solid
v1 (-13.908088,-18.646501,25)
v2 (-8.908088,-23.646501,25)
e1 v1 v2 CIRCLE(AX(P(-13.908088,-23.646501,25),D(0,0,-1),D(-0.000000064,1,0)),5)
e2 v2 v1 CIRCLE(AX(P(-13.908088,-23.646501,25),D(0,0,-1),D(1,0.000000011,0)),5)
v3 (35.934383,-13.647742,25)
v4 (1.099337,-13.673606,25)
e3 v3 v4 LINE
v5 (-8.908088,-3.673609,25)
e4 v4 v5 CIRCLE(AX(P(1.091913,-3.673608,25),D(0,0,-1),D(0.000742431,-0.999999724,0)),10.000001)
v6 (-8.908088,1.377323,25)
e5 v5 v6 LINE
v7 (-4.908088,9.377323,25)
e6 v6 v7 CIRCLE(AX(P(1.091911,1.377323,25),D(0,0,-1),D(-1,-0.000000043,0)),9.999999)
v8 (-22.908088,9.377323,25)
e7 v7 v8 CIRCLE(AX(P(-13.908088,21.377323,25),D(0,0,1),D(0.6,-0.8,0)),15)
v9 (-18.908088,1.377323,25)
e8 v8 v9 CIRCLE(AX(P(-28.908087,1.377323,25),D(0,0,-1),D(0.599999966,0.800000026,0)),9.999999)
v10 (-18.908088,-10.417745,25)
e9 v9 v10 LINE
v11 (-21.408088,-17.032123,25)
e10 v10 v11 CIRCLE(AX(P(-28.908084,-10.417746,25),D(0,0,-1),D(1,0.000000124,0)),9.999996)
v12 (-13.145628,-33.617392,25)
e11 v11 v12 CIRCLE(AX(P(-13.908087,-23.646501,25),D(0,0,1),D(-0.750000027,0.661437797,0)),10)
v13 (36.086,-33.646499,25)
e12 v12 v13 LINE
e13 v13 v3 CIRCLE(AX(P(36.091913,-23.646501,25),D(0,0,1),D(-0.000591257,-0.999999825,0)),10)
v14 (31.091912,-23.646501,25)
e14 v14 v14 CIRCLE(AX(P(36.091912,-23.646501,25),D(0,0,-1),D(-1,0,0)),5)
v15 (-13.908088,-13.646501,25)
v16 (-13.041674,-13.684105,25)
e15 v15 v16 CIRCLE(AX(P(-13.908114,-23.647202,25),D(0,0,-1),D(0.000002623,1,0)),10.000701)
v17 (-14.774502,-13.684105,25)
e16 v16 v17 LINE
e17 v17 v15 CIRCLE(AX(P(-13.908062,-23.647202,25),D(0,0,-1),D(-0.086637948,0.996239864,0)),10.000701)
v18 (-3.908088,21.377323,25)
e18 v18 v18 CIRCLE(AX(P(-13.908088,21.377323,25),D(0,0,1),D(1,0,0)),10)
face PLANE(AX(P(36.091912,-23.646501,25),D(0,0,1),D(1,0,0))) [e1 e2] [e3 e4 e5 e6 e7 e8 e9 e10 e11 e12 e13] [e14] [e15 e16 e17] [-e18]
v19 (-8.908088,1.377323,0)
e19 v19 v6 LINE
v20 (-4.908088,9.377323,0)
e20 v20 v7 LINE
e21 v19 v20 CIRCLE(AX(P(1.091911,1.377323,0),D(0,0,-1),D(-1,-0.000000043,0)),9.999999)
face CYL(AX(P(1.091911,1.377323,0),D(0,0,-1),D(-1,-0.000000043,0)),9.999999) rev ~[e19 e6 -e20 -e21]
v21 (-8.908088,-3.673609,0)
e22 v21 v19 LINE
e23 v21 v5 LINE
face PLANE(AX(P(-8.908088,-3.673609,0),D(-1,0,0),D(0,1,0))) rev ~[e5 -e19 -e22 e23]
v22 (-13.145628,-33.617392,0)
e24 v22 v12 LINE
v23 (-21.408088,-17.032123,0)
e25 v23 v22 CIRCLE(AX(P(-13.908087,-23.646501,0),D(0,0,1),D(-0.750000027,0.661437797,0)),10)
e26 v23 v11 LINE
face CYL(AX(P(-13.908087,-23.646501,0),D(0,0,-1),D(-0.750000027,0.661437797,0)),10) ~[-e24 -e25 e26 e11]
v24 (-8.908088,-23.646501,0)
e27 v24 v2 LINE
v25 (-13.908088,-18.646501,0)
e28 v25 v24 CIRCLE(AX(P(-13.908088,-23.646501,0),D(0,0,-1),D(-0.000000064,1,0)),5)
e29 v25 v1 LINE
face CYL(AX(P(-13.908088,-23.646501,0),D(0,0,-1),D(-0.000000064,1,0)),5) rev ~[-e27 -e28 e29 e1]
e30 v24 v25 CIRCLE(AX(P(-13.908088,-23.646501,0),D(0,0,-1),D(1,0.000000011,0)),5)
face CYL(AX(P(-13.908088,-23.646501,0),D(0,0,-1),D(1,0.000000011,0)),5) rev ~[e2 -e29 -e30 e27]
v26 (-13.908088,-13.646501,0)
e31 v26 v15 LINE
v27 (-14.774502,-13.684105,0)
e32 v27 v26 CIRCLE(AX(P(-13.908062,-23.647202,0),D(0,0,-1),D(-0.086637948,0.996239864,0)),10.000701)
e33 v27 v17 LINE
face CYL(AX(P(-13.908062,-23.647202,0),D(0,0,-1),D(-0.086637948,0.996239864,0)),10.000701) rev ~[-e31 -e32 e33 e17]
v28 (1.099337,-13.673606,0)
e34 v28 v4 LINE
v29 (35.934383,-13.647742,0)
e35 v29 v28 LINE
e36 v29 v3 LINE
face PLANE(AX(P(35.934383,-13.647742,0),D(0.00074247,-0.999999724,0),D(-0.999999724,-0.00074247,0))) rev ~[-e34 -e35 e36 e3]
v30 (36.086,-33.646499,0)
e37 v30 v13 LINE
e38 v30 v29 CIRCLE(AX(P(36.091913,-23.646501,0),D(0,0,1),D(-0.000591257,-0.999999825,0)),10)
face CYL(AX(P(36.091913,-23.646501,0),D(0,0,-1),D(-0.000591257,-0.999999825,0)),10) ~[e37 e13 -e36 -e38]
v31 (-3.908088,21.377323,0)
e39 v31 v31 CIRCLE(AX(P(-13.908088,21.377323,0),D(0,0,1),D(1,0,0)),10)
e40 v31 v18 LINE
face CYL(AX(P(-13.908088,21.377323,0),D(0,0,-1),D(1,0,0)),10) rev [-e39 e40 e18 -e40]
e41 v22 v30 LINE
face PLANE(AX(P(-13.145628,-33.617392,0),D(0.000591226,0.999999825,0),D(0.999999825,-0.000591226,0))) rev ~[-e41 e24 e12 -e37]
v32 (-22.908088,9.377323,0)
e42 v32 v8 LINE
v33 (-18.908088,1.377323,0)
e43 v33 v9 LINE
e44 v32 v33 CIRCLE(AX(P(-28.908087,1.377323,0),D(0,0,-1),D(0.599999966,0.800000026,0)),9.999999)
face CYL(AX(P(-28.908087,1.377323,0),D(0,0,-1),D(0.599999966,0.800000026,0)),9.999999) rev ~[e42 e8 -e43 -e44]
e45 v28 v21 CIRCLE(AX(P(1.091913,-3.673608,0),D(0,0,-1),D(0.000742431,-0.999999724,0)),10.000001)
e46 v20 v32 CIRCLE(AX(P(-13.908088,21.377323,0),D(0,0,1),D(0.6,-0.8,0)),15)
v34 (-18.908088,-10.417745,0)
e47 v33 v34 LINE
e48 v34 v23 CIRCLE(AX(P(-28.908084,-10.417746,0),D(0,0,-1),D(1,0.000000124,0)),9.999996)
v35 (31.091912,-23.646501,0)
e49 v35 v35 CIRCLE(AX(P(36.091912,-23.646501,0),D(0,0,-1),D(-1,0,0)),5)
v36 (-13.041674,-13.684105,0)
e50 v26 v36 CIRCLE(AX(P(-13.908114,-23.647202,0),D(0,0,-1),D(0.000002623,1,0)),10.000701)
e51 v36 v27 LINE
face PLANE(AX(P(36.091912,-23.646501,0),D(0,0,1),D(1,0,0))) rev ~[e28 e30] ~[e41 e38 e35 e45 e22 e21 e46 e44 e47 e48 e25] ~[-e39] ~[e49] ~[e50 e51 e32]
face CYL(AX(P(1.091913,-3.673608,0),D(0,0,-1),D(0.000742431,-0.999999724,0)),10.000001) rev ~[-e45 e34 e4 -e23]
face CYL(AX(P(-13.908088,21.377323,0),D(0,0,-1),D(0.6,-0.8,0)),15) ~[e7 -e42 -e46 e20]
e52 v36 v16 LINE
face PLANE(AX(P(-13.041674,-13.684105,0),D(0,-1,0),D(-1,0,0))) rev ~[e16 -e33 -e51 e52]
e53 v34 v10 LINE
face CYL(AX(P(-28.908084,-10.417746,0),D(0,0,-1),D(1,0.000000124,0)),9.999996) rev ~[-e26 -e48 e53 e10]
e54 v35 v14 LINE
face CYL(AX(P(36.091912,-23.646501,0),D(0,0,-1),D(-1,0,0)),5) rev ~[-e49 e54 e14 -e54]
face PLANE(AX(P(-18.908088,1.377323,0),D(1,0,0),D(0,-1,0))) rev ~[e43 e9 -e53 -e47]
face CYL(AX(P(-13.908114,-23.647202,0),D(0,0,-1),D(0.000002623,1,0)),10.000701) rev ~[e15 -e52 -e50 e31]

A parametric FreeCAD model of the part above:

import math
import FreeCAD as App
import Part
import Sketcher
from FreeCAD import Vector

doc = App.newDocument("Part")
params = doc.addObject("Spreadsheet::Sheet", "Params")
for row, (alias, value) in enumerate([
    ("sketch1_diameter", "10 mm"),
    ("sketch1_diameter2", "20 mm"),
    ("sketch1_radius", "9.999999 mm"),
    ("sketch1_radius2", "15 mm"),
    ("sketch1_radius3", "9.999999 mm"),
    ("pad1_length", "25 mm"),
], start=1):
    params.set(f"A{row}", alias)
    params.set(f"B{row}", "=" + value)
    params.setAlias(f"B{row}", alias)

body = doc.addObject("PartDesign::Body", "Body")

# Sketch on XY plane
sketch1 = body.newObject("Sketcher::SketchObject", "Sketch")
sketch1.AttachmentSupport = (doc.getObject("XY_Plane"), [""])
sketch1.MapMode = "FlatFace"
sketch1.addGeometry([
    Part.ArcOfCircle(Part.Circle(Vector(1.091911, 1.377323, 0), Vector(0, 0, 1), 9.999999), math.radians(126.869895), math.radians(180.000002)),  # 0
    Part.ArcOfCircle(Part.Circle(Vector(-13.908088, 21.377323, 0), Vector(0, 0, 1), 15), math.radians(-53.130102), math.radians(233.130102)),  # 1
    Part.ArcOfCircle(Part.Circle(Vector(-28.908087, 1.377323, 0), Vector(0, 0, 1), 9.999999), math.radians(-0.000002), math.radians(53.130105)),  # 2
    Part.LineSegment(Vector(-18.908088, 1.377323, 0), Vector(-18.908088, -10.417745, 0)),  # 3
    Part.ArcOfCircle(Part.Circle(Vector(-28.908084, -10.417746, 0), Vector(0, 0, 1), 9.999996), math.radians(-41.409631), math.radians(0.000007)),  # 4
    Part.ArcOfCircle(Part.Circle(Vector(-13.908087, -23.646501, 0), Vector(0, 0, 1), 10), math.radians(138.59038), math.radians(274.372815)),  # 5
    Part.LineSegment(Vector(-13.145628, -33.617392, 0), Vector(36.086, -33.646499, 0)),  # 6
    Part.ArcOfCircle(Part.Circle(Vector(36.091913, -23.646501, 0), Vector(0, 0, 1), 10), math.radians(-90.033877), math.radians(90.902615)),  # 7
    Part.LineSegment(Vector(35.934383, -13.647742, 0), Vector(1.099337, -13.673606, 0)),  # 8
    Part.ArcOfCircle(Part.Circle(Vector(1.091913, -3.673608, 0), Vector(0, 0, 1), 10.000001), math.radians(-179.999995), math.radians(-89.957462)),  # 9
    Part.LineSegment(Vector(-8.908088, -3.673609, 0), Vector(-8.908088, 1.377323, 0)),  # 10
    Part.ArcOfCircle(Part.Circle(Vector(-13.908088, -23.646501, 0), Vector(0, 0, 1), 5), math.radians(-0.000004), math.radians(90.000004)),  # 11
    Part.ArcOfCircle(Part.Circle(Vector(-13.908088, -23.646501, 0), Vector(0, 0, 1), 5), math.radians(89.999999), math.radians(360.000001)),  # 12
    Part.ArcOfCircle(Part.Circle(Vector(-13.908062, -23.647202, 0), Vector(0, 0, 1), 10.000701), math.radians(90.00015), math.radians(94.97022)),  # 13
    Part.ArcOfCircle(Part.Circle(Vector(-13.908114, -23.647202, 0), Vector(0, 0, 1), 10.000701), math.radians(85.02978), math.radians(89.99985)),  # 14
    Part.LineSegment(Vector(-13.041674, -13.684105, 0), Vector(-14.774502, -13.684105, 0)),  # 15
    Part.Circle(Vector(36.091912, -23.646501, 0), Vector(0, 0, 1), 5),  # 16
    Part.Circle(Vector(-13.908088, 21.377323, 0), Vector(0, 0, 1), 10),  # 17
], False)
sketch1.addConstraint([
    Sketcher.Constraint("Coincident", 0, 1, 1, 1),
    Sketcher.Constraint("Coincident", 1, 2, 2, 2),
    Sketcher.Constraint("Coincident", 2, 1, 3, 1),
    Sketcher.Constraint("Coincident", 3, 2, 4, 2),
    Sketcher.Constraint("Coincident", 4, 1, 5, 1),
    Sketcher.Constraint("Coincident", 5, 2, 6, 1),
    Sketcher.Constraint("Coincident", 6, 2, 7, 1),
    Sketcher.Constraint("Coincident", 7, 2, 8, 1),
    Sketcher.Constraint("Coincident", 8, 2, 9, 2),
    Sketcher.Constraint("Coincident", 9, 1, 10, 1),
    Sketcher.Constraint("Coincident", 10, 2, 0, 2),
    Sketcher.Constraint("Coincident", 11, 1, 12, 2),
    Sketcher.Constraint("Coincident", 12, 1, 11, 2),
    Sketcher.Constraint("Coincident", 13, 1, 14, 2),
    Sketcher.Constraint("Coincident", 14, 1, 15, 1),
    Sketcher.Constraint("Coincident", 15, 2, 13, 2),
    Sketcher.Constraint("Vertical", 3),
    Sketcher.Constraint("Vertical", 10),
    Sketcher.Constraint("Horizontal", 15),
    Sketcher.Constraint("Coincident", 11, 3, 5, 3),
    Sketcher.Constraint("Coincident", 16, 3, 7, 3),
    Sketcher.Constraint("Coincident", 17, 3, 1, 3),
    Sketcher.Constraint("Diameter", 16, 10.0),
    Sketcher.Constraint("Diameter", 17, 20.0),
    Sketcher.Constraint("Radius", 0, 9.999999),
    Sketcher.Constraint("Radius", 1, 15.0),
    Sketcher.Constraint("Radius", 2, 9.999999),
    Sketcher.Constraint("Radius", 5, 10.0),
    Sketcher.Constraint("Radius", 7, 10.0),
    Sketcher.Constraint("Radius", 9, 10.000001),
    Sketcher.Constraint("Radius", 11, 5.0),
    Sketcher.Constraint("Radius", 12, 5.0),
    Sketcher.Constraint("DistanceX", 1, 3, 0, 3, 14.999999),
    Sketcher.Constraint("DistanceX", 2, 3, 1, 3, 14.999999),
    Sketcher.Constraint("DistanceX", 5, 3, 0, 3, 14.999999),
    Sketcher.Constraint("DistanceX", 0, 3, 7, 3, 35.000001),
    Sketcher.Constraint("DistanceX", 0, 1, 0, 3, 5.999999),
    Sketcher.Constraint("DistanceX", 2, 3, 1, 2, 5.999999),
    Sketcher.Constraint("DistanceY", 2, 1, 1, 2, 8.0),
    Sketcher.Constraint("DistanceY", 10, 2, 0, 1, 8.0),
    Sketcher.Constraint("DistanceY", 12, 1, 13, 1, 5.0),
    Sketcher.Constraint("DistanceX", 3, 2, 13, 1, 5.0),
    Sketcher.Constraint("Radius", 13, 10.000701),
    Sketcher.Constraint("Radius", 14, 10.000701),
    Sketcher.Constraint("DistanceX", 4, 1, 3, 2, 2.5),
    Sketcher.Constraint("DistanceX", -1, 1, 6, 2, 36.086),
    Sketcher.Constraint("Radius", 4, 9.999996),
    Sketcher.Constraint("DistanceY", 10, 1, 10, 2, 5.050932),
    Sketcher.Constraint("DistanceY", 5, 3, -1, 1, 23.646501),
    Sketcher.Constraint("DistanceY", 7, 3, -1, 1, 23.646501),
    Sketcher.Constraint("DistanceY", 11, 1, -1, 1, 23.646501),
    Sketcher.Constraint("DistanceX", 15, 2, 15, 1, 1.732828),
    Sketcher.Constraint("DistanceY", 3, 2, 3, 1, 11.795068),
    Sketcher.Constraint("DistanceX", -1, 1, 0, 3, 1.091911),
    Sketcher.Constraint("DistanceY", 9, 3, -1, 1, 3.673608),
    Sketcher.Constraint("DistanceX", 13, 3, -1, 1, 13.908062),
    Sketcher.Constraint("DistanceY", 7, 2, -1, 1, 13.647742),
    Sketcher.Constraint("DistanceY", 9, 1, -1, 1, 3.673609),
    Sketcher.Constraint("DistanceX", 4, 3, 14, 3, 14.99997),
    Sketcher.Constraint("DistanceY", 5, 2, 13, 3, 9.97019),
    Sketcher.Constraint("Distance", 8, 34.835056),
    Sketcher.Constraint("DistanceX", 12, 1, -1, 1, 13.908088),
])
sketch1.setExpression("Constraints[22]", "Params.sketch1_diameter")
sketch1.setExpression("Constraints[23]", "Params.sketch1_diameter2")
sketch1.setExpression("Constraints[24]", "Params.sketch1_radius")
sketch1.setExpression("Constraints[25]", "Params.sketch1_radius2")
sketch1.setExpression("Constraints[26]", "Params.sketch1_radius3")
pad1 = body.newObject("PartDesign::Pad", "Pad")
pad1.Profile = sketch1
pad1.setExpression("Length", "Params.pad1_length")

doc.recompute()
